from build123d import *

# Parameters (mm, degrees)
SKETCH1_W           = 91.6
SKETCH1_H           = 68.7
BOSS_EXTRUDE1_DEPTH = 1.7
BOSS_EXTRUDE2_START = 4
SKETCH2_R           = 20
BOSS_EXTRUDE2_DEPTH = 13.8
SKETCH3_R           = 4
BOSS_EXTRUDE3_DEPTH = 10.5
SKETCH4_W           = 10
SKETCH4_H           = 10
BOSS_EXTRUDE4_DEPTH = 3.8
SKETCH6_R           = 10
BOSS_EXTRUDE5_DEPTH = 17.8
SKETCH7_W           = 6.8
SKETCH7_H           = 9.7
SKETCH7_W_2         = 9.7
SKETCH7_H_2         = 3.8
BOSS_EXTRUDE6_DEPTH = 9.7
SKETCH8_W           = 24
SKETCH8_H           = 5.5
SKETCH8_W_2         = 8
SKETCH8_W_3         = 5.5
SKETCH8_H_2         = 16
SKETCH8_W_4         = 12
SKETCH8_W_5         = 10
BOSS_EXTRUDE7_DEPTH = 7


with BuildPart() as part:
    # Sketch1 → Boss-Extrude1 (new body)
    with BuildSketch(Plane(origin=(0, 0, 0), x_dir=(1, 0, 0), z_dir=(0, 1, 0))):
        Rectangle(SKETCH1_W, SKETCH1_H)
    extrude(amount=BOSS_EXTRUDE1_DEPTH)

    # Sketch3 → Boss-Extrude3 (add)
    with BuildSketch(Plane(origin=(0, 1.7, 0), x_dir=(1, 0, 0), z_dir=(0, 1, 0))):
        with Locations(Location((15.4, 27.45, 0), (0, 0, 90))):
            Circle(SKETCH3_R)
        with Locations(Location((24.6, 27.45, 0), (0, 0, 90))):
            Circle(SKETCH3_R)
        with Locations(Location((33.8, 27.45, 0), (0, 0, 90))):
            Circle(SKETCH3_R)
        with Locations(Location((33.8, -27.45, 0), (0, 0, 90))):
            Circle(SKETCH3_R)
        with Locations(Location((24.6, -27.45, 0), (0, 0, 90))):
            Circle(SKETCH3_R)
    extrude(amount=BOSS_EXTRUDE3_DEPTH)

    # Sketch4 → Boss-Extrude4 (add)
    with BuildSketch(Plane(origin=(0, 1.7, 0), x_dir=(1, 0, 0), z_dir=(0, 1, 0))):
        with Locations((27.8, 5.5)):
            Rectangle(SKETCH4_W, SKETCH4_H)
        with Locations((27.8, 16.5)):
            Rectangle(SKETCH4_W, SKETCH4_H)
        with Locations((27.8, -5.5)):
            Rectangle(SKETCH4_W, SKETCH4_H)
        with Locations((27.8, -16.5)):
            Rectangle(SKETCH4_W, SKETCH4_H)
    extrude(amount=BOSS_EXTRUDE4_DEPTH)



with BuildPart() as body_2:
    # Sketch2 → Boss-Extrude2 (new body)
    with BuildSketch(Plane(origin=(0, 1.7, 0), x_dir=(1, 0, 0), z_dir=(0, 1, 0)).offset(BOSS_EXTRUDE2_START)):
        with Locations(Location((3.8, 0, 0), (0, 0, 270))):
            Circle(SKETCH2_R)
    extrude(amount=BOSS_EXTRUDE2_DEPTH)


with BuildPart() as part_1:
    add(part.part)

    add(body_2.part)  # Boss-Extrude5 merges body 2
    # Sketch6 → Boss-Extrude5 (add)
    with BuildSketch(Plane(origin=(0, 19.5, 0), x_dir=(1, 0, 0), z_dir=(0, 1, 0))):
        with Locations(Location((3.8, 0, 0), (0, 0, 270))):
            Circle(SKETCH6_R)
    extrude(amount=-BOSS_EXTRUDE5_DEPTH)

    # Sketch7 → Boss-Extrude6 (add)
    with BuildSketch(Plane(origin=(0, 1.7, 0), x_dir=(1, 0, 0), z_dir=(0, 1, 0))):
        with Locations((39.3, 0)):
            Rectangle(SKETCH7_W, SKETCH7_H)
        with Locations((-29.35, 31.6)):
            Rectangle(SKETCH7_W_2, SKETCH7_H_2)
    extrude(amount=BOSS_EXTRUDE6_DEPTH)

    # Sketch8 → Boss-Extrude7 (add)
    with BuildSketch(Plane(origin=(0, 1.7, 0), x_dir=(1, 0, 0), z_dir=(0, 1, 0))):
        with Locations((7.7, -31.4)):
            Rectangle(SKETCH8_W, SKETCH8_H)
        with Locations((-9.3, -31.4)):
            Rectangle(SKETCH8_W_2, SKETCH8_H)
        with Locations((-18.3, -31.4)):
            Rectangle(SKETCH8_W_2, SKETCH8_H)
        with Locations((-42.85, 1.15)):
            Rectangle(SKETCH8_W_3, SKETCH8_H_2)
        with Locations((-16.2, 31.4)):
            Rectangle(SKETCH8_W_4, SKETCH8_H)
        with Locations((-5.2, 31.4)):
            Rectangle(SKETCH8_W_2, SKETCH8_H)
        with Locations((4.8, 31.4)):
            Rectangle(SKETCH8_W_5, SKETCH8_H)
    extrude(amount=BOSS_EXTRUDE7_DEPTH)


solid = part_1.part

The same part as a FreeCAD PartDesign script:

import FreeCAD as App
import Part
import Sketcher

V = App.Vector

doc = App.newDocument("Part")
body = doc.addObject("PartDesign::Body", "Body")

# Sketch on XZ plane
sketch1 = body.newObject("Sketcher::SketchObject", "Sketch")
sketch1.AttachmentSupport = (doc.getObject("XZ_Plane"), [""])
sketch1.MapMode = "FlatFace"
sketch1.addGeometry([
    Part.LineSegment(V(-45.8, -34.35, 0), V(-45.8, 34.35, 0)),
    Part.LineSegment(V(-45.8, 34.35, 0), V(45.8, 34.35, 0)),
    Part.LineSegment(V(45.8, 34.35, 0), V(45.8, -34.35, 0)),
    Part.LineSegment(V(45.8, -34.35, 0), V(-45.8, -34.35, 0)),
], False)
sketch1.addConstraint([
    Sketcher.Constraint("Coincident", 0, 2, 1, 1),
    Sketcher.Constraint("Coincident", 1, 2, 2, 1),
    Sketcher.Constraint("Coincident", 2, 2, 3, 1),
    Sketcher.Constraint("Coincident", 3, 2, 0, 1),
    Sketcher.Constraint("Vertical", 0),
    Sketcher.Constraint("Horizontal", 1),
    Sketcher.Constraint("Vertical", 2),
    Sketcher.Constraint("Horizontal", 3),
    Sketcher.Constraint("Symmetric", 0, 2, 2, 2, -1, 1),
    Sketcher.Constraint("DistanceX", 1, 1, 1, 2, 91.6),
    Sketcher.Constraint("DistanceY", 0, 1, 0, 2, 68.7),
])
pad1 = body.newObject("PartDesign::Pad", "Pad")
pad1.Profile = sketch1
pad1.Length = 1.7
pad1.Reversed = True

# Sketch on XZ plane
sketch2 = body.newObject("Sketcher::SketchObject", "Sketch001")
sketch2.AttachmentSupport = (doc.getObject("XZ_Plane"), [""])
sketch2.MapMode = "FlatFace"
sketch2.AttachmentOffset = App.Placement(V(0, 0, -1.7), App.Rotation())
sketch2.addGeometry([
    Part.Circle(V(15.4, -27.45, 0), V(0, 0, 1), 4),  # 0
    Part.Circle(V(24.6, -27.45, 0), V(0, 0, 1), 4),  # 1
    Part.Circle(V(33.8, -27.45, 0), V(0, 0, 1), 4),  # 2
    Part.Circle(V(33.8, 27.45, 0), V(0, 0, 1), 4),  # 3
    Part.Circle(V(24.6, 27.45, 0), V(0, 0, 1), 4),  # 4
], False)
sketch2.addConstraint([
    Sketcher.Constraint("Equal", 0, 1),
    Sketcher.Constraint("Equal", 1, 2),
    Sketcher.Constraint("Equal", 2, 3),
    Sketcher.Constraint("Equal", 3, 4),
    Sketcher.Constraint("Symmetric", 2, 3, 3, 3, -1),
    Sketcher.Constraint("Symmetric", 1, 3, 4, 3, -1),
    Sketcher.Constraint("Horizontal", 0, 3, 1, 3),
    Sketcher.Constraint("Horizontal", 1, 3, 2, 3),
    Sketcher.Constraint("Diameter", 0, 8.0),
    Sketcher.Constraint("DistanceX", -1, 1, 0, 3, 15.4),
    Sketcher.Constraint("DistanceX", -1, 1, 1, 3, 24.6),
    Sketcher.Constraint("DistanceX", -1, 1, 2, 3, 33.8),
    Sketcher.Constraint("DistanceY", 2, 3, 3, 3, 54.9),
])
pad2 = body.newObject("PartDesign::Pad", "Pad001")
pad2.Profile = sketch2
pad2.Length = 10.5
pad2.Reversed = True

# Sketch on XZ plane
sketch3 = body.newObject("Sketcher::SketchObject", "Sketch002")
sketch3.AttachmentSupport = (doc.getObject("XZ_Plane"), [""])
sketch3.MapMode = "FlatFace"
sketch3.AttachmentOffset = App.Placement(V(0, 0, -1.7), App.Rotation())
sketch3.addGeometry([
    Part.LineSegment(V(22.8, -10.5, 0), V(22.8, -0.5, 0)),  # 0
    Part.LineSegment(V(22.8, -0.5, 0), V(32.8, -0.5, 0)),  # 1
    Part.LineSegment(V(32.8, -0.5, 0), V(32.8, -10.5, 0)),  # 2
    Part.LineSegment(V(32.8, -10.5, 0), V(22.8, -10.5, 0)),  # 3
    Part.LineSegment(V(22.8, -21.5, 0), V(22.8, -11.5, 0)),  # 4
    Part.LineSegment(V(22.8, -11.5, 0), V(32.8, -11.5, 0)),  # 5
    Part.LineSegment(V(32.8, -11.5, 0), V(32.8, -21.5, 0)),  # 6
    Part.LineSegment(V(32.8, -21.5, 0), V(22.8, -21.5, 0)),  # 7
    Part.LineSegment(V(22.8, 0.5, 0), V(22.8, 10.5, 0)),  # 8
    Part.LineSegment(V(22.8, 10.5, 0), V(32.8, 10.5, 0)),  # 9
    Part.LineSegment(V(32.8, 10.5, 0), V(32.8, 0.5, 0)),  # 10
    Part.LineSegment(V(32.8, 0.5, 0), V(22.8, 0.5, 0)),  # 11
    Part.LineSegment(V(22.8, 11.5, 0), V(22.8, 21.5, 0)),  # 12
    Part.LineSegment(V(22.8, 21.5, 0), V(32.8, 21.5, 0)),  # 13
    Part.LineSegment(V(32.8, 21.5, 0), V(32.8, 11.5, 0)),  # 14
    Part.LineSegment(V(32.8, 11.5, 0), V(22.8, 11.5, 0)),  # 15
], False)
sketch3.addConstraint([
    Sketcher.Constraint("Coincident", 0, 2, 1, 1),
    Sketcher.Constraint("Coincident", 1, 2, 2, 1),
    Sketcher.Constraint("Coincident", 2, 2, 3, 1),
    Sketcher.Constraint("Coincident", 3, 2, 0, 1),
    Sketcher.Constraint("Coincident", 4, 2, 5, 1),
    Sketcher.Constraint("Coincident", 5, 2, 6, 1),
    Sketcher.Constraint("Coincident", 6, 2, 7, 1),
    Sketcher.Constraint("Coincident", 7, 2, 4, 1),
    Sketcher.Constraint("Coincident", 8, 2, 9, 1),
    Sketcher.Constraint("Coincident", 9, 2, 10, 1),
    Sketcher.Constraint("Coincident", 10, 2, 11, 1),
    Sketcher.Constraint("Coincident", 11, 2, 8, 1),
    Sketcher.Constraint("Coincident", 12, 2, 13, 1),
    Sketcher.Constraint("Coincident", 13, 2, 14, 1),
    Sketcher.Constraint("Coincident", 14, 2, 15, 1),
    Sketcher.Constraint("Coincident", 15, 2, 12, 1),
    Sketcher.Constraint("Vertical", 0),
    Sketcher.Constraint("Horizontal", 1),
    Sketcher.Constraint("Vertical", 2),
    Sketcher.Constraint("Horizontal", 3),
    Sketcher.Constraint("Vertical", 4),
    Sketcher.Constraint("Horizontal", 5),
    Sketcher.Constraint("Vertical", 6),
    Sketcher.Constraint("Horizontal", 7),
    Sketcher.Constraint("Vertical", 8),
    Sketcher.Constraint("Horizontal", 9),
    Sketcher.Constraint("Vertical", 10),
    Sketcher.Constraint("Horizontal", 11),
    Sketcher.Constraint("Vertical", 12),
    Sketcher.Constraint("Horizontal", 13),
    Sketcher.Constraint("Vertical", 14),
    Sketcher.Constraint("Horizontal", 15),
    Sketcher.Constraint("Symmetric", 3, 2, 8, 2, -1),
    Sketcher.Constraint("Symmetric", 1, 2, 10, 2, -1),
    Sketcher.Constraint("Symmetric", 7, 2, 12, 2, -1),
    Sketcher.Constraint("Symmetric", 5, 2, 14, 2, -1),
    Sketcher.Constraint("Vertical", 3, 2, 4, 2),
    Sketcher.Constraint("Vertical", 2, 2, 5, 2),
    Sketcher.Constraint("Equal", 15, 0),
    Sketcher.Constraint("Equal", 2, 4),
    Sketcher.Constraint("DistanceX", 1, 1, 1, 2, 10.0),
    Sketcher.Constraint("DistanceY", 4, 2, 3, 2, 1.0),
    Sketcher.Constraint("DistanceY", 0, 2, 8, 2, 11.0),
    Sketcher.Constraint("DistanceX", -1, 1, 0, 2, 22.8),
])
pad3 = body.newObject("PartDesign::Pad", "Pad002")
pad3.Profile = sketch3
pad3.Length = 3.8
pad3.Reversed = True
body2 = doc.addObject("PartDesign::Body", "Body001")

# Sketch on XZ plane
sketch4 = body2.newObject("Sketcher::SketchObject", "Sketch003")
sketch4.AttachmentSupport = (doc.getObject("XZ_Plane001"), [""])
sketch4.MapMode = "FlatFace"
sketch4.AttachmentOffset = App.Placement(V(0, 0, -5.7), App.Rotation())
sketch4.addGeometry(Part.Circle(V(3.8, 0, 0), V(0, 0, 1), 20), False)
sketch4.addConstraint([
    Sketcher.Constraint("PointOnObject", 0, 3, -1),
    Sketcher.Constraint("Diameter", 0, 40.0),
    Sketcher.Constraint("DistanceX", -1, 1, 0, 3, 3.8),
])
pad4 = body2.newObject("PartDesign::Pad", "Pad003")
pad4.Profile = sketch4
pad4.Length = 13.8
pad4.Reversed = True
body.AllowCompound = True
doc.recompute()

boolean = body.newObject("PartDesign::Boolean", "Boolean")
boolean.Type = "Fuse"
boolean.addObjects([body2])

# Sketch on XZ plane
sketch5 = body.newObject("Sketcher::SketchObject", "Sketch004")
sketch5.AttachmentSupport = (doc.getObject("XZ_Plane"), [""])
sketch5.MapMode = "FlatFace"
sketch5.AttachmentOffset = App.Placement(V(0, 0, -19.5), App.Rotation())
sketch5.addGeometry(Part.Circle(V(3.8, 0, 0), V(0, 0, 1), 10), False)
sketch5.addConstraint([
    Sketcher.Constraint("PointOnObject", 0, 3, -1),
    Sketcher.Constraint("Diameter", 0, 20.0),
    Sketcher.Constraint("DistanceX", -1, 1, 0, 3, 3.8),
])
pad5 = body.newObject("PartDesign::Pad", "Pad004")
pad5.Profile = sketch5
pad5.Length = 17.8

# Sketch on XZ plane
sketch6 = body.newObject("Sketcher::SketchObject", "Sketch005")
sketch6.AttachmentSupport = (doc.getObject("XZ_Plane"), [""])
sketch6.MapMode = "FlatFace"
sketch6.AttachmentOffset = App.Placement(V(0, 0, -1.7), App.Rotation())
sketch6.addGeometry([
    Part.LineSegment(V(35.9, -4.85, 0), V(35.9, 4.85, 0)),  # 0
    Part.LineSegment(V(35.9, 4.85, 0), V(42.7, 4.85, 0)),  # 1
    Part.LineSegment(V(42.7, 4.85, 0), V(42.7, -4.85, 0)),  # 2
    Part.LineSegment(V(42.7, -4.85, 0), V(35.9, -4.85, 0)),  # 3
    Part.LineSegment(V(-34.2, -33.5, 0), V(-34.2, -29.7, 0)),  # 4
    Part.LineSegment(V(-34.2, -29.7, 0), V(-24.5, -29.7, 0)),  # 5
    Part.LineSegment(V(-24.5, -29.7, 0), V(-24.5, -33.5, 0)),  # 6
    Part.LineSegment(V(-24.5, -33.5, 0), V(-34.2, -33.5, 0)),  # 7
], False)
sketch6.addConstraint([
    Sketcher.Constraint("Coincident", 0, 2, 1, 1),
    Sketcher.Constraint("Coincident", 1, 2, 2, 1),
    Sketcher.Constraint("Coincident", 2, 2, 3, 1),
    Sketcher.Constraint("Coincident", 3, 2, 0, 1),
    Sketcher.Constraint("Coincident", 4, 2, 5, 1),
    Sketcher.Constraint("Coincident", 5, 2, 6, 1),
    Sketcher.Constraint("Coincident", 6, 2, 7, 1),
    Sketcher.Constraint("Coincident", 7, 2, 4, 1),
    Sketcher.Constraint("Vertical", 0),
    Sketcher.Constraint("Horizontal", 1),
    Sketcher.Constraint("Vertical", 2),
    Sketcher.Constraint("Horizontal", 3),
    Sketcher.Constraint("Vertical", 4),
    Sketcher.Constraint("Horizontal", 5),
    Sketcher.Constraint("Vertical", 6),
    Sketcher.Constraint("Horizontal", 7),
    Sketcher.Constraint("Equal", 7, 0),
    Sketcher.Constraint("DistanceX", 1, 1, 1, 2, 6.8),
    Sketcher.Constraint("DistanceX", 5, 1, 5, 2, 9.7),
    Sketcher.Constraint("DistanceY", 4, 1, 4, 2, 3.8),
    Sketcher.Constraint("DistanceX", -1, 1, 0, 2, 35.9),
    Sketcher.Constraint("DistanceX", 4, 2, -1, 1, 34.2),
    Sketcher.Constraint("DistanceY", 4, 2, -1, 1, 29.7),
    Sketcher.Constraint("DistanceY", -1, 1, 0, 2, 4.85),
])
pad6 = body.newObject("PartDesign::Pad", "Pad005")
pad6.Profile = sketch6
pad6.Length = 9.7
pad6.Reversed = True

# Sketch on XZ plane
sketch7 = body.newObject("Sketcher::SketchObject", "Sketch006")
sketch7.AttachmentSupport = (doc.getObject("XZ_Plane"), [""])
sketch7.MapMode = "FlatFace"
sketch7.AttachmentOffset = App.Placement(V(0, 0, -1.7), App.Rotation())
sketch7.addGeometry([
    Part.LineSegment(V(-4.3, 28.65, 0), V(-4.3, 34.15, 0)),  # 0
    Part.LineSegment(V(-4.3, 34.15, 0), V(19.7, 34.15, 0)),  # 1
    Part.LineSegment(V(19.7, 34.15, 0), V(19.7, 28.65, 0)),  # 2
    Part.LineSegment(V(19.7, 28.65, 0), V(-4.3, 28.65, 0)),  # 3
    Part.LineSegment(V(-13.3, 28.65, 0), V(-13.3, 34.15, 0)),  # 4
    Part.LineSegment(V(-13.3, 34.15, 0), V(-5.3, 34.15, 0)),  # 5
    Part.LineSegment(V(-5.3, 34.15, 0), V(-5.3, 28.65, 0)),  # 6
    Part.LineSegment(V(-5.3, 28.65, 0), V(-13.3, 28.65, 0)),  # 7
    Part.LineSegment(V(-22.3, 28.65, 0), V(-22.3, 34.15, 0)),  # 8
    Part.LineSegment(V(-22.3, 34.15, 0), V(-14.3, 34.15, 0)),  # 9
    Part.LineSegment(V(-14.3, 34.15, 0), V(-14.3, 28.65, 0)),  # 10
    Part.LineSegment(V(-14.3, 28.65, 0), V(-22.3, 28.65, 0)),  # 11
    Part.LineSegment(V(-45.6, -9.15, 0), V(-45.6, 6.85, 0)),  # 12
    Part.LineSegment(V(-45.6, 6.85, 0), V(-40.1, 6.85, 0)),  # 13
    Part.LineSegment(V(-40.1, 6.85, 0), V(-40.1, -9.15, 0)),  # 14
    Part.LineSegment(V(-40.1, -9.15, 0), V(-45.6, -9.15, 0)),  # 15
    Part.LineSegment(V(-22.2, -34.15, 0), V(-22.2, -28.65, 0)),  # 16
    Part.LineSegment(V(-22.2, -28.65, 0), V(-10.2, -28.65, 0)),  # 17
    Part.LineSegment(V(-10.2, -28.65, 0), V(-10.2, -34.15, 0)),  # 18
    Part.LineSegment(V(-10.2, -34.15, 0), V(-22.2, -34.15, 0)),  # 19
    Part.LineSegment(V(-9.2, -34.15, 0), V(-9.2, -28.65, 0)),  # 20
    Part.LineSegment(V(-9.2, -28.65, 0), V(-1.2, -28.65, 0)),  # 21
    Part.LineSegment(V(-1.2, -28.65, 0), V(-1.2, -34.15, 0)),  # 22
    Part.LineSegment(V(-1.2, -34.15, 0), V(-9.2, -34.15, 0)),  # 23
    Part.LineSegment(V(-0.2, -34.15, 0), V(-0.2, -28.65, 0)),  # 24
    Part.LineSegment(V(-0.2, -28.65, 0), V(9.8, -28.65, 0)),  # 25
    Part.LineSegment(V(9.8, -28.65, 0), V(9.8, -34.15, 0)),  # 26
    Part.LineSegment(V(9.8, -34.15, 0), V(-0.2, -34.15, 0)),  # 27
], False)
sketch7.addConstraint([
    Sketcher.Constraint("Coincident", 0, 2, 1, 1),
    Sketcher.Constraint("Coincident", 1, 2, 2, 1),
    Sketcher.Constraint("Coincident", 2, 2, 3, 1),
    Sketcher.Constraint("Coincident", 3, 2, 0, 1),
    Sketcher.Constraint("Coincident", 4, 2, 5, 1),
    Sketcher.Constraint("Coincident", 5, 2, 6, 1),
    Sketcher.Constraint("Coincident", 6, 2, 7, 1),
    Sketcher.Constraint("Coincident", 7, 2, 4, 1),
    Sketcher.Constraint("Coincident", 8, 2, 9, 1),
    Sketcher.Constraint("Coincident", 9, 2, 10, 1),
    Sketcher.Constraint("Coincident", 10, 2, 11, 1),
    Sketcher.Constraint("Coincident", 11, 2, 8, 1),
    Sketcher.Constraint("Coincident", 12, 2, 13, 1),
    Sketcher.Constraint("Coincident", 13, 2, 14, 1),
    Sketcher.Constraint("Coincident", 14, 2, 15, 1),
    Sketcher.Constraint("Coincident", 15, 2, 12, 1),
    Sketcher.Constraint("Coincident", 16, 2, 17, 1),
    Sketcher.Constraint("Coincident", 17, 2, 18, 1),
    Sketcher.Constraint("Coincident", 18, 2, 19, 1),
    Sketcher.Constraint("Coincident", 19, 2, 16, 1),
    Sketcher.Constraint("Coincident", 20, 2, 21, 1),
    Sketcher.Constraint("Coincident", 21, 2, 22, 1),
    Sketcher.Constraint("Coincident", 22, 2, 23, 1),
    Sketcher.Constraint("Coincident", 23, 2, 20, 1),
    Sketcher.Constraint("Coincident", 24, 2, 25, 1),
    Sketcher.Constraint("Coincident", 25, 2, 26, 1),
    Sketcher.Constraint("Coincident", 26, 2, 27, 1),
    Sketcher.Constraint("Coincident", 27, 2, 24, 1),
    Sketcher.Constraint("Vertical", 0),
    Sketcher.Constraint("Horizontal", 1),
    Sketcher.Constraint("Vertical", 2),
    Sketcher.Constraint("Horizontal", 3),
    Sketcher.Constraint("Vertical", 4),
    Sketcher.Constraint("Horizontal", 5),
    Sketcher.Constraint("Vertical", 6),
    Sketcher.Constraint("Horizontal", 7),
    Sketcher.Constraint("Vertical", 8),
    Sketcher.Constraint("Horizontal", 9),
    Sketcher.Constraint("Vertical", 10),
    Sketcher.Constraint("Horizontal", 11),
    Sketcher.Constraint("Vertical", 12),
    Sketcher.Constraint("Horizontal", 13),
    Sketcher.Constraint("Vertical", 14),
    Sketcher.Constraint("Horizontal", 15),
    Sketcher.Constraint("Vertical", 16),
    Sketcher.Constraint("Horizontal", 17),
    Sketcher.Constraint("Vertical", 18),
    Sketcher.Constraint("Horizontal", 19),
    Sketcher.Constraint("Vertical", 20),
    Sketcher.Constraint("Horizontal", 21),
    Sketcher.Constraint("Vertical", 22),
    Sketcher.Constraint("Horizontal", 23),
    Sketcher.Constraint("Vertical", 24),
    Sketcher.Constraint("Horizontal", 25),
    Sketcher.Constraint("Vertical", 26),
    Sketcher.Constraint("Horizontal", 27),
    Sketcher.Constraint("Horizontal", 1, 2, 4, 2),
    Sketcher.Constraint("Horizontal", 3, 2, 6, 2),
    Sketcher.Constraint("Horizontal", 5, 2, 8, 2),
    Sketcher.Constraint("Horizontal", 7, 2, 10, 2),
    Sketcher.Constraint("Horizontal", 17, 2, 20, 2),
    Sketcher.Constraint("Horizontal", 19, 2, 22, 2),
    Sketcher.Constraint("Horizontal", 21, 2, 24, 2),
    Sketcher.Constraint("Horizontal", 23, 2, 26, 2),
    Sketcher.Constraint("Equal", 7, 9),
    Sketcher.Constraint("Equal", 11, 21),
    Sketcher.Constraint("Equal", 15, 0),
    Sketcher.Constraint("Equal", 10, 16),
    Sketcher.Constraint("DistanceX", 1, 1, 1, 2, 24.0),
    Sketcher.Constraint("DistanceX", 5, 1, 5, 2, 8.0),
    Sketcher.Constraint("DistanceX", 17, 1, 17, 2, 12.0),
    Sketcher.Constraint("DistanceX", 25, 1, 25, 2, 10.0),
    Sketcher.Constraint("DistanceY", 12, 1, 12, 2, 16.0),
    Sketcher.Constraint("DistanceX", 13, 1, 13, 2, 5.5),
    Sketcher.Constraint("DistanceX", 4, 2, 0, 2, 9.0),
    Sketcher.Constraint("DistanceX", 8, 2, 4, 2, 9.0),
    Sketcher.Constraint("DistanceY", 18, 2, 14, 2, 25.0),
    Sketcher.Constraint("DistanceX", 17, 2, 20, 2, 1.0),
    Sketcher.Constraint("DistanceX", 21, 2, 24, 2, 1.0),
    Sketcher.Constraint("DistanceX", 0, 2, -1, 1, 4.3),
    Sketcher.Constraint("DistanceX", 12, 2, -1, 1, 45.6),
    Sketcher.Constraint("DistanceX", 16, 2, -1, 1, 22.2),
    Sketcher.Constraint("DistanceY", 12, 2, 11, 2, 21.8),
    Sketcher.Constraint("DistanceY", -1, 1, 0, 2, 34.15),
])
pad7 = body.newObject("PartDesign::Pad", "Pad006")
pad7.Profile = sketch7
pad7.Length = 7
pad7.Reversed = True

doc.recompute()
